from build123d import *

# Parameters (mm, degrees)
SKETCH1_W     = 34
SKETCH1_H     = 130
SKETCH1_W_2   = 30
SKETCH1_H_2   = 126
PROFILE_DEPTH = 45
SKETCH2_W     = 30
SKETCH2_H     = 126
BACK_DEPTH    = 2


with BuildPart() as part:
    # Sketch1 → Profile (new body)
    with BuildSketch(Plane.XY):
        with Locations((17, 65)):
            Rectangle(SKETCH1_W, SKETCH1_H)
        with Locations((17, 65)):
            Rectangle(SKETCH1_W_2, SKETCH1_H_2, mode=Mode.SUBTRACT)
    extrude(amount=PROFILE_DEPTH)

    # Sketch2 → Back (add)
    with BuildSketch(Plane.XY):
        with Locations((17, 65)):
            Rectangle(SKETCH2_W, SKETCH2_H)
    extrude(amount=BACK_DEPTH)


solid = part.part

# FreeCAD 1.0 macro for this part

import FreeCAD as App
import Part
import Sketcher

V = App.Vector
Q = App.Units.Quantity


def add_polygon(sketch, points):
    """Adds a closed chain of lines whose ends are joined by coincident constraints."""
    first, n = sketch.GeometryCount, len(points)
    for a, b in zip(points, points[1:] + points[:1]):
        sketch.addGeometry(Part.LineSegment(App.Vector(*a, 0), App.Vector(*b, 0)), False)
    for i in range(n):
        sketch.addConstraint(Sketcher.Constraint("Coincident", first + i, 2, first + (i + 1) % n, 1))

doc = App.newDocument("Part")
body = doc.addObject("PartDesign::Body", "Body")

sketch1 = body.newObject("Sketcher::SketchObject", "Sketch")
sketch1.AttachmentSupport = (doc.getObject("XY_Plane"), [""])
sketch1.MapMode = "FlatFace"
add_polygon(sketch1, [(0, 130), (0, 0), (34, 0), (34, 130)])
add_polygon(sketch1, [(32, 2), (2, 2), (2, 128), (32, 128)])
sketch1.addConstraint([
    Sketcher.Constraint("Vertical", 0),
    Sketcher.Constraint("Horizontal", 1),
    Sketcher.Constraint("Vertical", 2),
    Sketcher.Constraint("Horizontal", 3),
    Sketcher.Constraint("Horizontal", 4),
    Sketcher.Constraint("Vertical", 5),
    Sketcher.Constraint("Horizontal", 6),
    Sketcher.Constraint("Vertical", 7),
    Sketcher.Constraint("Coincident", 0, 2, -1, 1),
    Sketcher.Constraint("DistanceX", 1, 1, 1, 2, Q("34 mm")),
    Sketcher.Constraint("DistanceX", 4, 2, 4, 1, Q("30 mm")),
    Sketcher.Constraint("DistanceY", 0, 2, 0, 1, Q("130 mm")),
    Sketcher.Constraint("DistanceY", 5, 1, 5, 2, Q("126 mm")),
    Sketcher.Constraint("DistanceX", -1, 1, 4, 2, Q("2 mm")),
    Sketcher.Constraint("DistanceY", -1, 1, 4, 2, Q("2 mm")),
])
pad1 = body.newObject("PartDesign::Pad", "Pad")
pad1.Profile = sketch1
pad1.Length = 45

sketch2 = body.newObject("Sketcher::SketchObject", "Sketch001")
sketch2.AttachmentSupport = (doc.getObject("XY_Plane"), [""])
sketch2.MapMode = "FlatFace"
add_polygon(sketch2, [(2, 128), (2, 2), (32, 2), (32, 128)])
sketch2.addConstraint([
    Sketcher.Constraint("Vertical", 0),
    Sketcher.Constraint("Horizontal", 1),
    Sketcher.Constraint("Vertical", 2),
    Sketcher.Constraint("Horizontal", 3),
    Sketcher.Constraint("DistanceX", 1, 1, 1, 2, Q("30 mm")),
    Sketcher.Constraint("DistanceY", 0, 2, 0, 1, Q("126 mm")),
    Sketcher.Constraint("DistanceX", -1, 1, 0, 2, Q("2 mm")),
    Sketcher.Constraint("DistanceY", -1, 1, 0, 2, Q("2 mm")),
])
pad2 = body.newObject("PartDesign::Pad", "Pad001")
pad2.Profile = sketch2
pad2.Length = 2

doc.recompute()
